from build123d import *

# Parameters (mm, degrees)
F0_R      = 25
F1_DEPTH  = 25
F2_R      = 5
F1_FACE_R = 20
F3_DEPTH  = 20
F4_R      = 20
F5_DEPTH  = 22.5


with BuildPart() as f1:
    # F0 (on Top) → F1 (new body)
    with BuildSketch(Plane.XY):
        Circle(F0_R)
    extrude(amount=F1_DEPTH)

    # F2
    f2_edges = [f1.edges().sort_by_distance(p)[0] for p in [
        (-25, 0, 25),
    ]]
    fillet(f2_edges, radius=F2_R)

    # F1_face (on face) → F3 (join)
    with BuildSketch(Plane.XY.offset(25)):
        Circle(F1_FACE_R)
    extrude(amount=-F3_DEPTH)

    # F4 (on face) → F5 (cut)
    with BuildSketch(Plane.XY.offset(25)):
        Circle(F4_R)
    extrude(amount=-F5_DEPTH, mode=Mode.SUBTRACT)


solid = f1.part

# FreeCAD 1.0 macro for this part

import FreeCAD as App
import Part
import Sketcher


def edges_at(feature, points):
    """Names of the edges that pass closest to the given points."""
    edges = feature.Shape.Edges
    near = lambda p: min(range(len(edges)), key=lambda i: edges[i].distToShape(Part.Vertex(*p))[0])
    return sorted({f"Edge{near(p) + 1}" for p in points})

doc = App.newDocument("Part")
params = doc.addObject("Spreadsheet::Sheet", "Params")
for row, (alias, value) in enumerate([
    ("sketch1_diameter", "50 mm"),
    ("pad1_length", "25 mm"),
    ("fillet_radius", "5 mm"),
    ("sketch2_diameter", "40 mm"),
    ("pad2_length", "20 mm"),
    ("sketch3_diameter", "40 mm"),
    ("pocket1_length", "22.5 mm"),
], start=1):
    params.set(f"A{row}", alias)
    params.set(f"B{row}", "=" + value)
    params.setAlias(f"B{row}", alias)

body = doc.addObject("PartDesign::Body", "Body")

sketch1 = body.newObject("Sketcher::SketchObject", "Sketch")
sketch1.AttachmentSupport = (doc.getObject("XY_Plane"), [""])
sketch1.MapMode = "FlatFace"
sketch1.addGeometry(Part.Circle(App.Vector(0, 0, 0), App.Vector(0, 0, 1), 25), False)
sketch1.addConstraint([
    Sketcher.Constraint("Coincident", 0, 3, -1, 1),
    Sketcher.Constraint("Diameter", 0, 50.0),
])
sketch1.setExpression("Constraints[1]", "Params.sketch1_diameter")
pad1 = body.newObject("PartDesign::Pad", "Pad")
pad1.Profile = sketch1
pad1.setExpression("Length", "Params.pad1_length")
doc.recompute()

fillet = body.newObject("PartDesign::Fillet", "Fillet")
fillet.Base = (pad1, edges_at(pad1, [(-25, 0, 25)]))
fillet.setExpression("Radius", "Params.fillet_radius")

sketch2 = body.newObject("Sketcher::SketchObject", "Sketch001")
sketch2.AttachmentSupport = (doc.getObject("XY_Plane"), [""])
sketch2.MapMode = "FlatFace"
sketch2.AttachmentOffset = App.Placement(App.Vector(0, 0, 25), App.Rotation())
sketch2.addGeometry(Part.Circle(App.Vector(0, 0, 0), App.Vector(0, 0, 1), 20), False)
sketch2.addConstraint([
    Sketcher.Constraint("Coincident", 0, 3, -1, 1),
    Sketcher.Constraint("Diameter", 0, 40.0),
])
sketch2.setExpression("Constraints[1]", "Params.sketch2_diameter")
pad2 = body.newObject("PartDesign::Pad", "Pad001")
pad2.Profile = sketch2
pad2.setExpression("Length", "Params.pad2_length")
pad2.Reversed = True

sketch3 = body.newObject("Sketcher::SketchObject", "Sketch002")
sketch3.AttachmentSupport = (doc.getObject("XY_Plane"), [""])
sketch3.MapMode = "FlatFace"
sketch3.AttachmentOffset = App.Placement(App.Vector(0, 0, 25), App.Rotation())
sketch3.addGeometry(Part.Circle(App.Vector(0, 0, 0), App.Vector(0, 0, 1), 20), False)
sketch3.addConstraint([
    Sketcher.Constraint("Coincident", 0, 3, -1, 1),
    Sketcher.Constraint("Diameter", 0, 40.0),
])
sketch3.setExpression("Constraints[1]", "Params.sketch3_diameter")
pocket1 = body.newObject("PartDesign::Pocket", "Pocket")
pocket1.Profile = sketch3
pocket1.setExpression("Length", "Params.pocket1_length")

doc.recompute()
